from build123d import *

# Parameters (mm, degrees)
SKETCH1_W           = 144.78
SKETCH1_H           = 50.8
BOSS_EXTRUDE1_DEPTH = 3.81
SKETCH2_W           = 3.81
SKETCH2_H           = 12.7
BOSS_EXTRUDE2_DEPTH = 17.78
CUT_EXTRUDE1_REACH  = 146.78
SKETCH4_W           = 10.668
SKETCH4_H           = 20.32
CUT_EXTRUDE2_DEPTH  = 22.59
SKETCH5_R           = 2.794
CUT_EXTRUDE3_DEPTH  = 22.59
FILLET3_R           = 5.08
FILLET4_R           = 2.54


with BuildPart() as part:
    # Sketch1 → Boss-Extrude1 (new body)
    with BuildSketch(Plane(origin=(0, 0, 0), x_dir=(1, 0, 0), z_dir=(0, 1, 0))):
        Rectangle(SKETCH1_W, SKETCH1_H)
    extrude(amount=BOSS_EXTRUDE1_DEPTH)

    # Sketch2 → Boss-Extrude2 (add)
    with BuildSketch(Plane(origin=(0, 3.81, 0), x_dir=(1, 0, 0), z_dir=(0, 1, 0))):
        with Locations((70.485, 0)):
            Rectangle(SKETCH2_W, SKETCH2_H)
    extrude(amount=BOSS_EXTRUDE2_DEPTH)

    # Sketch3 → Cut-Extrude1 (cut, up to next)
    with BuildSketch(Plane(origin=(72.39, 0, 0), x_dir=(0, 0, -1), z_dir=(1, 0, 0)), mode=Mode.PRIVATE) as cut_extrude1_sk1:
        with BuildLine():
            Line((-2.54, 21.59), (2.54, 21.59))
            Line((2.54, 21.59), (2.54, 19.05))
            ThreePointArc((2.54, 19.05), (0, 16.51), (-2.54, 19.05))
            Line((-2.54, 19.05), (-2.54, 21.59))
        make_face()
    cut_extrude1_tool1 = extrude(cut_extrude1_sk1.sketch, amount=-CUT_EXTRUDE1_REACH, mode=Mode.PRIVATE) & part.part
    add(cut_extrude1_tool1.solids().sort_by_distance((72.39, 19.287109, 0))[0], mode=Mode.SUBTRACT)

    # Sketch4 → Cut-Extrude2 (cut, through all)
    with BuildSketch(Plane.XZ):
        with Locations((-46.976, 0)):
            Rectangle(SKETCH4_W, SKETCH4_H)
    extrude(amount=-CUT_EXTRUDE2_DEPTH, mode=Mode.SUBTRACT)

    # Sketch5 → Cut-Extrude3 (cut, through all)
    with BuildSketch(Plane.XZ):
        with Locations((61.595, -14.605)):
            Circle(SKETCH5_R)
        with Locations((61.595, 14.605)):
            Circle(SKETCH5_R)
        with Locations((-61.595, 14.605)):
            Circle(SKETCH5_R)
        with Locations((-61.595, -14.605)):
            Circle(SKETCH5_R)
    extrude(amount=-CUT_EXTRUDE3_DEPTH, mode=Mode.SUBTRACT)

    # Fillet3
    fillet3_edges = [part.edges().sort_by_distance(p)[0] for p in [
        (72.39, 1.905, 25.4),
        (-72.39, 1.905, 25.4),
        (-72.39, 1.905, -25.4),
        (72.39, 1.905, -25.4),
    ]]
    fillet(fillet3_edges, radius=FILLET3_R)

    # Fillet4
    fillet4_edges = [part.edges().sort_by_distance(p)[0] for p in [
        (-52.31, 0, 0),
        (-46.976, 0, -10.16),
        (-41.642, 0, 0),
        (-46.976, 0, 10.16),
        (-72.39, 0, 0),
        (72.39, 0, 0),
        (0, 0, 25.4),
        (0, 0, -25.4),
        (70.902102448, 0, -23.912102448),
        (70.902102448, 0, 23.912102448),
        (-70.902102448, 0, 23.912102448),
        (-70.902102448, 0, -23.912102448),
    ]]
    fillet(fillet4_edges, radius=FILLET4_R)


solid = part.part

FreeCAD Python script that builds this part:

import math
import FreeCAD as App
import Part
import Sketcher

V = App.Vector
Q = App.Units.Quantity


def edges_at(feature, points):
    """Names of the edges that pass closest to the given points."""
    edges = feature.Shape.Edges
    near = lambda p: min(range(len(edges)), key=lambda i: edges[i].distToShape(Part.Vertex(*p))[0])
    return sorted({f"Edge{near(p) + 1}" for p in points})


def add_polygon(sketch, points):
    """Adds a closed chain of lines whose ends are joined by coincident constraints."""
    first, n = sketch.GeometryCount, len(points)
    for a, b in zip(points, points[1:] + points[:1]):
        sketch.addGeometry(Part.LineSegment(App.Vector(*a, 0), App.Vector(*b, 0)), False)
    for i in range(n):
        sketch.addConstraint(Sketcher.Constraint("Coincident", first + i, 2, first + (i + 1) % n, 1))

doc = App.newDocument("Part")
body = doc.addObject("PartDesign::Body", "Body")

sketch1 = body.newObject("Sketcher::SketchObject", "Sketch")
sketch1.AttachmentSupport = (doc.getObject("XZ_Plane"), [""])
sketch1.MapMode = "FlatFace"
add_polygon(sketch1, [(-72, -25), (-72, 25), (72, 25), (72, -25)])
sketch1.addConstraint(Sketcher.Constraint("Vertical", 0))
sketch1.addConstraint(Sketcher.Constraint("Horizontal", 1))
sketch1.addConstraint(Sketcher.Constraint("Vertical", 2))
sketch1.addConstraint(Sketcher.Constraint("Horizontal", 3))
sketch1.addConstraint(Sketcher.Constraint("Symmetric", 0, 2, 2, 2, -1, 1))
sketch1.addConstraint(Sketcher.Constraint("DistanceY", 0, 1, 0, 2, Q("2 in")))
sketch1.addConstraint(Sketcher.Constraint("DistanceX", 1, 1, 1, 2, Q("5.7 in")))
pad1 = body.newObject("PartDesign::Pad", "Pad")
pad1.Profile = sketch1
pad1.Length = Q("0.15 in")
pad1.Reversed = True

sketch2 = body.newObject("Sketcher::SketchObject", "Sketch001")
sketch2.AttachmentSupport = (doc.getObject("XZ_Plane"), [""])
sketch2.MapMode = "FlatFace"
sketch2.AttachmentOffset = App.Placement(V(0, 0, -0.15 * 25.4), App.Rotation())
add_polygon(sketch2, [(68.6, -6.3), (68.6, 6.3), (72.4, 6.3), (72.4, -6.3)])
sketch2.addConstraint(Sketcher.Constraint("Vertical", 0))
sketch2.addConstraint(Sketcher.Constraint("Horizontal", 1))
sketch2.addConstraint(Sketcher.Constraint("Vertical", 2))
sketch2.addConstraint(Sketcher.Constraint("Horizontal", 3))
sketch2.addConstraint(Sketcher.Constraint("DistanceY", 0, 1, 0, 2, Q("0.5 in")))
sketch2.addConstraint(Sketcher.Constraint("DistanceX", 1, 1, 1, 2, Q("0.15 in")))
sketch2.addConstraint(Sketcher.Constraint("DistanceX", -1, 1, 0, 2, Q("2.7 in")))
sketch2.addConstraint(Sketcher.Constraint("DistanceY", -1, 1, 0, 2, Q("0.25 in")))
pad2 = body.newObject("PartDesign::Pad", "Pad001")
pad2.Profile = sketch2
pad2.Length = Q("0.7 in")
pad2.Reversed = True

sketch3 = body.newObject("Sketcher::SketchObject", "Sketch002")
sketch3.AttachmentSupport = (doc.getObject("YZ_Plane"), [""])
sketch3.MapMode = "FlatFace"
sketch3.AttachmentOffset = App.Placement(V(0, 0, 2.85 * 25.4), App.Rotation())
sketch3.addGeometry(Part.LineSegment(V(21.6, -2.5, 0), V(21.6, 2.5, 0)), False)
sketch3.addGeometry(Part.LineSegment(V(21.6, 2.5, 0), V(19.1, 2.5, 0)), False)
sketch3.addGeometry(Part.ArcOfCircle(Part.Circle(V(19.1, 0, 0), V(0, 0, 1), 2.5), math.radians(90), math.radians(270)), False)
sketch3.addGeometry(Part.LineSegment(V(19.1, -2.5, 0), V(21.6, -2.5, 0)), False)
sketch3.addConstraint(Sketcher.Constraint("Coincident", 0, 2, 1, 1))
sketch3.addConstraint(Sketcher.Constraint("Tangent", 1, 2, 2, 1))
sketch3.addConstraint(Sketcher.Constraint("Tangent", 2, 2, 3, 1))
sketch3.addConstraint(Sketcher.Constraint("Coincident", 3, 2, 0, 1))
sketch3.addConstraint(Sketcher.Constraint("Vertical", 0))
sketch3.addConstraint(Sketcher.Constraint("Horizontal", 1))
sketch3.addConstraint(Sketcher.Constraint("Horizontal", 3))
sketch3.addConstraint(Sketcher.Constraint("PointOnObject", 2, 3, -1))
sketch3.addConstraint(Sketcher.Constraint("Radius", 2, Q("0.1 in")))
sketch3.addConstraint(Sketcher.Constraint("DistanceX", 1, 2, 1, 1, Q("0.1 in")))
sketch3.addConstraint(Sketcher.Constraint("DistanceX", -1, 1, 2, 3, Q("0.75 in")))
pocket1 = body.newObject("PartDesign::Pocket", "Pocket")
pocket1.Profile = sketch3
pocket1.Type = "UpToFirst"

sketch4 = body.newObject("Sketcher::SketchObject", "Sketch003")
sketch4.AttachmentSupport = (doc.getObject("XZ_Plane"), [""])
sketch4.MapMode = "FlatFace"
add_polygon(sketch4, [(-52, 10), (-52, -10), (-42, -10), (-42, 10)])
sketch4.addConstraint(Sketcher.Constraint("Vertical", 0))
sketch4.addConstraint(Sketcher.Constraint("Horizontal", 1))
sketch4.addConstraint(Sketcher.Constraint("Vertical", 2))
sketch4.addConstraint(Sketcher.Constraint("Horizontal", 3))
sketch4.addConstraint(Sketcher.Constraint("DistanceY", 0, 2, 0, 1, Q("0.8 in")))
sketch4.addConstraint(Sketcher.Constraint("DistanceX", 1, 1, 1, 2, Q("0.42 in")))
sketch4.addConstraint(Sketcher.Constraint("DistanceY", 0, 2, -1, 1, Q("0.4 in")))
sketch4.addConstraint(Sketcher.Constraint("DistanceX", 0, 2, -1, 1, Q("52.31 mm")))
pocket2 = body.newObject("PartDesign::Pocket", "Pocket001")
pocket2.Profile = sketch4
pocket2.Type = "ThroughAll"

sketch5 = body.newObject("Sketcher::SketchObject", "Sketch004")
sketch5.AttachmentSupport = (doc.getObject("XZ_Plane"), [""])
sketch5.MapMode = "FlatFace"
sketch5.addGeometry(Part.Circle(V(61.6, -14.6, 0), V(0, 0, 1), 2.8), False)
sketch5.addGeometry(Part.Circle(V(61.6, 14.6, 0), V(0, 0, 1), 2.8), False)
sketch5.addGeometry(Part.Circle(V(-61.6, 14.6, 0), V(0, 0, 1), 2.8), False)
sketch5.addGeometry(Part.Circle(V(-61.6, -14.6, 0), V(0, 0, 1), 2.8), False)
sketch5.addConstraint(Sketcher.Constraint("Equal", 0, 1))
sketch5.addConstraint(Sketcher.Constraint("Equal", 1, 2))
sketch5.addConstraint(Sketcher.Constraint("Equal", 2, 3))
sketch5.addConstraint(Sketcher.Constraint("Symmetric", 0, 3, 2, 3, -1, 1))
sketch5.addConstraint(Sketcher.Constraint("Symmetric", 1, 3, 3, 3, -1, 1))
sketch5.addConstraint(Sketcher.Constraint("Symmetric", 1, 3, 2, 3, -2))
sketch5.addConstraint(Sketcher.Constraint("Diameter", 0, Q("0.22 in")))
sketch5.addConstraint(Sketcher.Constraint("DistanceY", 0, 3, 1, 3, Q("1.15 in")))
sketch5.addConstraint(Sketcher.Constraint("DistanceX", 2, 3, 1, 3, Q("4.85 in")))
pocket3 = body.newObject("PartDesign::Pocket", "Pocket002")
pocket3.Profile = sketch5
pocket3.Type = "ThroughAll"
doc.recompute()

fillet = body.newObject("PartDesign::Fillet", "Fillet")
fillet.Base = (pocket3, edges_at(pocket3, [
    (72.39, 1.905, 25.4),
    (-72.39, 1.905, 25.4),
    (-72.39, 1.905, -25.4),
    (72.39, 1.905, -25.4),
]))
fillet.Radius = Q("0.2 in")
doc.recompute()

fillet2 = body.newObject("PartDesign::Fillet", "Fillet001")
fillet2.Base = (fillet, edges_at(fillet, [
    (-52.31, 0, 0),
    (-46.976, 0, -10.16),
    (-41.642, 0, 0),
    (-46.976, 0, 10.16),
    (-72.39, 0, 0),
    (72.39, 0, 0),
    (0, 0, 25.4),
    (0, 0, -25.4),
    (70.902, 0, -23.912),
    (70.902, 0, 23.912),
    (-70.902, 0, 23.912),
    (-70.902, 0, -23.912),
]))
fillet2.Radius = Q("0.1 in")

doc.recompute()
